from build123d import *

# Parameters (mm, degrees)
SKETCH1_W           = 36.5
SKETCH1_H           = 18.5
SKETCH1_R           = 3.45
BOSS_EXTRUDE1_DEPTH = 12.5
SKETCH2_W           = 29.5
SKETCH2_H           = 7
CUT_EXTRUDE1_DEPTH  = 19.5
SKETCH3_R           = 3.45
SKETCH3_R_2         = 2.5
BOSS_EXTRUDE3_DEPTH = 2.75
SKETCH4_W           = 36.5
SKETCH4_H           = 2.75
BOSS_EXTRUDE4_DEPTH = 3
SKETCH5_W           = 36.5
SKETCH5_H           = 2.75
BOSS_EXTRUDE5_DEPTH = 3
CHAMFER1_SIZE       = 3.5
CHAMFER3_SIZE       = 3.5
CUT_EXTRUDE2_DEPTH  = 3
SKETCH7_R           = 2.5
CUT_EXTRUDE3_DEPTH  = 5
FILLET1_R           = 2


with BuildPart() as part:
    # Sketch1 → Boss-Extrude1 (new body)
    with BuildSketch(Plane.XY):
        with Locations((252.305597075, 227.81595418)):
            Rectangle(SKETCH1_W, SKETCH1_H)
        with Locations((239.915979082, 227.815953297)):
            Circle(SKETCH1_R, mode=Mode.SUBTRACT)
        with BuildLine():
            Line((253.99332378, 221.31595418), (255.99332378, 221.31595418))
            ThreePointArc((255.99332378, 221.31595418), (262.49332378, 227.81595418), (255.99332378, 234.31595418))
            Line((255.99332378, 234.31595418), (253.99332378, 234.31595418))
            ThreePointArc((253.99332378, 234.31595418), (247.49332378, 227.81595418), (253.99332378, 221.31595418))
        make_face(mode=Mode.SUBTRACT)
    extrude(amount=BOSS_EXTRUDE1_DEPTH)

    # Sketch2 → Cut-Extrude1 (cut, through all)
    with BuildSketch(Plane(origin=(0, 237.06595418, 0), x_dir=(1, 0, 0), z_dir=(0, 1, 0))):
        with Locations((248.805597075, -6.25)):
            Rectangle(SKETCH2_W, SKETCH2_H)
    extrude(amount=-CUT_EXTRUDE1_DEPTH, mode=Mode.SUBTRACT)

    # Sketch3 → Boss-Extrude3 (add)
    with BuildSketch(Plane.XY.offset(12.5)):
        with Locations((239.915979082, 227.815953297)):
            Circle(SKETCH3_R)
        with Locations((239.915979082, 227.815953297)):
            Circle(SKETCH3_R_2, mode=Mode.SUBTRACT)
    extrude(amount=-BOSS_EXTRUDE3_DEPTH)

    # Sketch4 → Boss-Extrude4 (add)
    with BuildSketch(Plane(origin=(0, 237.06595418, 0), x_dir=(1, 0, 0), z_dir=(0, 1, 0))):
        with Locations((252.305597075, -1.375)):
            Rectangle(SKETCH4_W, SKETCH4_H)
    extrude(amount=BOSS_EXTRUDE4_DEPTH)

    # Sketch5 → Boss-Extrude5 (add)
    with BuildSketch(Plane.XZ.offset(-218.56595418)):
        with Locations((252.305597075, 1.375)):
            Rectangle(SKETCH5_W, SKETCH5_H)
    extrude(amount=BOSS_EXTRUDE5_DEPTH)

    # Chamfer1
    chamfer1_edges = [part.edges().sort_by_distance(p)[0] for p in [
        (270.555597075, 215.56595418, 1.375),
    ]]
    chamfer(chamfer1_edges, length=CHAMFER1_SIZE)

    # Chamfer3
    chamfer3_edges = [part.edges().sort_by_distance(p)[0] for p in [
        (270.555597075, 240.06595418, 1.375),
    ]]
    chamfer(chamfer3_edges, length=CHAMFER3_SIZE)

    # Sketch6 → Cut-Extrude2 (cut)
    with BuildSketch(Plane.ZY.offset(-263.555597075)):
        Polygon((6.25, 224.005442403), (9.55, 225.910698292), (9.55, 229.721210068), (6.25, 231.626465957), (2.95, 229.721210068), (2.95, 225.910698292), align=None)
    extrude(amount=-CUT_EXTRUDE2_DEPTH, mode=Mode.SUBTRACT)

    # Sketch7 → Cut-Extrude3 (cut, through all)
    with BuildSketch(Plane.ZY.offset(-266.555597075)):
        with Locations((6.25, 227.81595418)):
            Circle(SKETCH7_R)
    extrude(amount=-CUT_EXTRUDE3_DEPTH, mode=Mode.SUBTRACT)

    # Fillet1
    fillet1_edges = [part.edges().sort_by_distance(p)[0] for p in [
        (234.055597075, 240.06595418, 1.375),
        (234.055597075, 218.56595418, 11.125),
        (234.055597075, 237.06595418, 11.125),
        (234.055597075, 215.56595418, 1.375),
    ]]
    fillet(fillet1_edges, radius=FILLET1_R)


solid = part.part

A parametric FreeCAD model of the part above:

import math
import FreeCAD as App
import Part
import Sketcher

V = App.Vector
Q = App.Units.Quantity


def edges_at(feature, points):
    """Names of the edges that pass closest to the given points."""
    edges = feature.Shape.Edges
    near = lambda p: min(range(len(edges)), key=lambda i: edges[i].distToShape(Part.Vertex(*p))[0])
    return sorted({f"Edge{near(p) + 1}" for p in points})


def add_polygon(sketch, points):
    """Adds a closed chain of lines whose ends are joined by coincident constraints."""
    first, n = sketch.GeometryCount, len(points)
    for a, b in zip(points, points[1:] + points[:1]):
        sketch.addGeometry(Part.LineSegment(App.Vector(*a, 0), App.Vector(*b, 0)), False)
    for i in range(n):
        sketch.addConstraint(Sketcher.Constraint("Coincident", first + i, 2, first + (i + 1) % n, 1))

doc = App.newDocument("Part")
body = doc.addObject("PartDesign::Body", "Body")

sketch1 = body.newObject("Sketcher::SketchObject", "Sketch")
sketch1.AttachmentSupport = (doc.getObject("XY_Plane"), [""])
sketch1.MapMode = "FlatFace"
add_polygon(sketch1, [(234.1, 237.1), (234.1, 218.6), (270.6, 218.6), (270.6, 237.1)])
sketch1.addGeometry(Part.Circle(V(239.9, 227.8, 0), V(0, 0, 1), 3.5), False)
sketch1.addGeometry(Part.LineSegment(V(256, 221.3, 0), V(254, 221.3, 0)), False)
sketch1.addGeometry(Part.ArcOfCircle(Part.Circle(V(254, 227.8, 0), V(0, 0, 1), 6.5), math.radians(90), math.radians(270)), False)
sketch1.addGeometry(Part.LineSegment(V(254, 234.3, 0), V(256, 234.3, 0)), False)
sketch1.addGeometry(Part.ArcOfCircle(Part.Circle(V(256, 227.8, 0), V(0, 0, 1), 6.5), math.radians(-90), math.radians(90)), False)
sketch1.addConstraint([
    Sketcher.Constraint("Tangent", 5, 2, 6, 2),
    Sketcher.Constraint("Tangent", 6, 1, 7, 1),
    Sketcher.Constraint("Tangent", 7, 2, 8, 2),
    Sketcher.Constraint("Tangent", 8, 1, 5, 1),
    Sketcher.Constraint("Vertical", 0),
    Sketcher.Constraint("Horizontal", 1),
    Sketcher.Constraint("Vertical", 2),
    Sketcher.Constraint("Horizontal", 3),
    Sketcher.Constraint("Horizontal", 5),
    Sketcher.Constraint("Horizontal", 7),
    Sketcher.Constraint("Horizontal", 4, 3, 6, 3),
    Sketcher.Constraint("Diameter", 4, 6.9),
    Sketcher.Constraint("Radius", 6, 6.5),
    Sketcher.Constraint("DistanceX", 5, 2, 5, 1, 2.0),
    Sketcher.Constraint("DistanceX", 1, 1, 1, 2, 36.5),
    Sketcher.Constraint("DistanceY", 0, 2, 0, 1, 18.5),
    Sketcher.Constraint("DistanceY", 0, 2, 4, 3, 9.249999),
    Sketcher.Constraint("DistanceX", -1, 1, 4, 3, 239.915979),
    Sketcher.Constraint("DistanceY", -1, 1, 4, 3, 227.815953),
    Sketcher.Constraint("DistanceX", -1, 1, 6, 3, 253.993324),
    Sketcher.Constraint("DistanceX", -1, 1, 0, 2, 234.055597),
])
pad1 = body.newObject("PartDesign::Pad", "Pad")
pad1.Profile = sketch1
pad1.Length = 12.5

sketch2 = body.newObject("Sketcher::SketchObject", "Sketch001")
sketch2.AttachmentSupport = (doc.getObject("XZ_Plane"), [""])
sketch2.MapMode = "FlatFace"
sketch2.AttachmentOffset = App.Placement(V(0, 0, -237.065954), App.Rotation())
add_polygon(sketch2, [(234, 3), (234, 10), (264, 10), (264, 3)])
sketch2.addConstraint([
    Sketcher.Constraint("Vertical", 0),
    Sketcher.Constraint("Horizontal", 1),
    Sketcher.Constraint("Vertical", 2),
    Sketcher.Constraint("Horizontal", 3),
    Sketcher.Constraint("DistanceY", 0, 1, 0, 2, 7.0),
    Sketcher.Constraint("DistanceX", 1, 1, 1, 2, 29.5),
    Sketcher.Constraint("DistanceY", -1, 1, 0, 2, 9.75),
    Sketcher.Constraint("DistanceX", -1, 1, 0, 2, 234.055597),
])
pocket1 = body.newObject("PartDesign::Pocket", "Pocket")
pocket1.Profile = sketch2
pocket1.Type = "ThroughAll"
pocket1.Reversed = True

sketch3 = body.newObject("Sketcher::SketchObject", "Sketch002")
sketch3.AttachmentSupport = (doc.getObject("XY_Plane"), [""])
sketch3.MapMode = "FlatFace"
sketch3.AttachmentOffset = App.Placement(V(0, 0, 12.5), App.Rotation())
sketch3.addGeometry([
    Part.Circle(V(239.9, 227.8, 0), V(0, 0, 1), 3.5),
    Part.Circle(V(239.9, 227.8, 0), V(0, 0, 1), 2.5),
], False)
sketch3.addConstraint([
    Sketcher.Constraint("Coincident", 1, 3, 0, 3),
    Sketcher.Constraint("Diameter", 1, 5.0),
    Sketcher.Constraint("Diameter", 0, 6.9),
    Sketcher.Constraint("DistanceX", -1, 1, 0, 3, 239.915979),
    Sketcher.Constraint("DistanceY", -1, 1, 0, 3, 227.815953),
])
pad2 = body.newObject("PartDesign::Pad", "Pad001")
pad2.Profile = sketch3
pad2.Length = 2.75
pad2.Reversed = True

sketch4 = body.newObject("Sketcher::SketchObject", "Sketch003")
sketch4.AttachmentSupport = (doc.getObject("XZ_Plane"), [""])
sketch4.MapMode = "FlatFace"
sketch4.AttachmentOffset = App.Placement(V(0, 0, -237.065954), App.Rotation())
add_polygon(sketch4, [(234.1, 0), (234.1, 2.8), (270.6, 2.8), (270.6, 0)])
sketch4.addConstraint([
    Sketcher.Constraint("Vertical", 0),
    Sketcher.Constraint("Horizontal", 1),
    Sketcher.Constraint("Vertical", 2),
    Sketcher.Constraint("Horizontal", 3),
    Sketcher.Constraint("PointOnObject", 2, 2, -1),
    Sketcher.Constraint("DistanceX", 1, 1, 1, 2, 36.5),
    Sketcher.Constraint("DistanceY", 0, 1, 0, 2, 2.75),
    Sketcher.Constraint("DistanceX", -1, 1, 0, 2, 234.055597),
])
pad3 = body.newObject("PartDesign::Pad", "Pad002")
pad3.Profile = sketch4
pad3.Length = 3
pad3.Reversed = True

sketch5 = body.newObject("Sketcher::SketchObject", "Sketch004")
sketch5.AttachmentSupport = (doc.getObject("XZ_Plane"), [""])
sketch5.MapMode = "FlatFace"
sketch5.AttachmentOffset = App.Placement(V(0, 0, -218.565954), App.Rotation())
add_polygon(sketch5, [(234.1, 2.8), (234.1, 0), (270.6, 0), (270.6, 2.8)])
sketch5.addConstraint([
    Sketcher.Constraint("Vertical", 0),
    Sketcher.Constraint("Horizontal", 1),
    Sketcher.Constraint("Vertical", 2),
    Sketcher.Constraint("Horizontal", 3),
    Sketcher.Constraint("PointOnObject", 0, 2, -1),
    Sketcher.Constraint("DistanceX", 1, 1, 1, 2, 36.5),
    Sketcher.Constraint("DistanceY", 0, 2, 0, 1, 2.75),
    Sketcher.Constraint("DistanceX", -1, 1, 0, 2, 234.055597),
])
pad4 = body.newObject("PartDesign::Pad", "Pad003")
pad4.Profile = sketch5
pad4.Length = 3
doc.recompute()

chamfer = body.newObject("PartDesign::Chamfer", "Chamfer")
chamfer.Base = (pad4, edges_at(pad4, [(270.556, 215.566, 1.375)]))
chamfer.Size = 3.5
doc.recompute()

chamfer2 = body.newObject("PartDesign::Chamfer", "Chamfer001")
chamfer2.Base = (chamfer, edges_at(chamfer, [(270.556, 240.066, 1.375)]))
chamfer2.Size = 3.5

sketch6 = body.newObject("Sketcher::SketchObject", "Sketch005")
sketch6.AttachmentSupport = (doc.getObject("YZ_Plane"), [""])
sketch6.MapMode = "FlatFace"
sketch6.AttachmentOffset = App.Placement(V(0, 0, 263.555597), App.Rotation())
add_polygon(sketch6, [(224, 6.2), (225.9, 9.6), (229.7, 9.6), (231.6, 6.2), (229.7, 3), (225.9, 3)])
sketch6.addConstraint([
    Sketcher.Constraint("Horizontal", 1),
    Sketcher.Constraint("Horizontal", 4),
    Sketcher.Constraint("Parallel", 0, 3),
    Sketcher.Constraint("Parallel", 2, 5),
    Sketcher.Constraint("Horizontal", 2, 2, 5, 2),
    Sketcher.Constraint("Vertical", 1, 2, 3, 2),
    Sketcher.Constraint("Vertical", 0, 2, 4, 2),
    Sketcher.Constraint("Angle", 0, Q("60 deg")),
    Sketcher.Constraint("DistanceY", 2, 2, 1, 2, 3.3),
    Sketcher.Constraint("DistanceY", -1, 1, 0, 2, 9.55),
    Sketcher.Constraint("DistanceX", 1, 1, 1, 2, 3.810512),
    Sketcher.Constraint("DistanceX", -1, 1, 0, 2, 225.910698),
])
pocket2 = body.newObject("PartDesign::Pocket", "Pocket001")
pocket2.Profile = sketch6
pocket2.Length = 3
pocket2.Reversed = True

sketch7 = body.newObject("Sketcher::SketchObject", "Sketch006")
sketch7.AttachmentSupport = (doc.getObject("YZ_Plane"), [""])
sketch7.MapMode = "FlatFace"
sketch7.AttachmentOffset = App.Placement(V(0, 0, 266.555597), App.Rotation())
sketch7.addGeometry(Part.Circle(V(227.8, 6.2, 0), V(0, 0, 1), 2.5), False)
sketch7.addConstraint([
    Sketcher.Constraint("Diameter", 0, 5.0),
    Sketcher.Constraint("DistanceY", -1, 1, 0, 3, 6.25),
    Sketcher.Constraint("DistanceX", -1, 1, 0, 3, 227.815954),
])
pocket3 = body.newObject("PartDesign::Pocket", "Pocket002")
pocket3.Profile = sketch7
pocket3.Type = "ThroughAll"
pocket3.Reversed = True
doc.recompute()

fillet = body.newObject("PartDesign::Fillet", "Fillet")
fillet.Base = (pocket3, edges_at(pocket3, [
    (234.056, 240.066, 1.375),
    (234.056, 218.566, 11.125),
    (234.056, 237.066, 11.125),
    (234.056, 215.566, 1.375),
]))
fillet.Radius = 2

doc.recompute()
